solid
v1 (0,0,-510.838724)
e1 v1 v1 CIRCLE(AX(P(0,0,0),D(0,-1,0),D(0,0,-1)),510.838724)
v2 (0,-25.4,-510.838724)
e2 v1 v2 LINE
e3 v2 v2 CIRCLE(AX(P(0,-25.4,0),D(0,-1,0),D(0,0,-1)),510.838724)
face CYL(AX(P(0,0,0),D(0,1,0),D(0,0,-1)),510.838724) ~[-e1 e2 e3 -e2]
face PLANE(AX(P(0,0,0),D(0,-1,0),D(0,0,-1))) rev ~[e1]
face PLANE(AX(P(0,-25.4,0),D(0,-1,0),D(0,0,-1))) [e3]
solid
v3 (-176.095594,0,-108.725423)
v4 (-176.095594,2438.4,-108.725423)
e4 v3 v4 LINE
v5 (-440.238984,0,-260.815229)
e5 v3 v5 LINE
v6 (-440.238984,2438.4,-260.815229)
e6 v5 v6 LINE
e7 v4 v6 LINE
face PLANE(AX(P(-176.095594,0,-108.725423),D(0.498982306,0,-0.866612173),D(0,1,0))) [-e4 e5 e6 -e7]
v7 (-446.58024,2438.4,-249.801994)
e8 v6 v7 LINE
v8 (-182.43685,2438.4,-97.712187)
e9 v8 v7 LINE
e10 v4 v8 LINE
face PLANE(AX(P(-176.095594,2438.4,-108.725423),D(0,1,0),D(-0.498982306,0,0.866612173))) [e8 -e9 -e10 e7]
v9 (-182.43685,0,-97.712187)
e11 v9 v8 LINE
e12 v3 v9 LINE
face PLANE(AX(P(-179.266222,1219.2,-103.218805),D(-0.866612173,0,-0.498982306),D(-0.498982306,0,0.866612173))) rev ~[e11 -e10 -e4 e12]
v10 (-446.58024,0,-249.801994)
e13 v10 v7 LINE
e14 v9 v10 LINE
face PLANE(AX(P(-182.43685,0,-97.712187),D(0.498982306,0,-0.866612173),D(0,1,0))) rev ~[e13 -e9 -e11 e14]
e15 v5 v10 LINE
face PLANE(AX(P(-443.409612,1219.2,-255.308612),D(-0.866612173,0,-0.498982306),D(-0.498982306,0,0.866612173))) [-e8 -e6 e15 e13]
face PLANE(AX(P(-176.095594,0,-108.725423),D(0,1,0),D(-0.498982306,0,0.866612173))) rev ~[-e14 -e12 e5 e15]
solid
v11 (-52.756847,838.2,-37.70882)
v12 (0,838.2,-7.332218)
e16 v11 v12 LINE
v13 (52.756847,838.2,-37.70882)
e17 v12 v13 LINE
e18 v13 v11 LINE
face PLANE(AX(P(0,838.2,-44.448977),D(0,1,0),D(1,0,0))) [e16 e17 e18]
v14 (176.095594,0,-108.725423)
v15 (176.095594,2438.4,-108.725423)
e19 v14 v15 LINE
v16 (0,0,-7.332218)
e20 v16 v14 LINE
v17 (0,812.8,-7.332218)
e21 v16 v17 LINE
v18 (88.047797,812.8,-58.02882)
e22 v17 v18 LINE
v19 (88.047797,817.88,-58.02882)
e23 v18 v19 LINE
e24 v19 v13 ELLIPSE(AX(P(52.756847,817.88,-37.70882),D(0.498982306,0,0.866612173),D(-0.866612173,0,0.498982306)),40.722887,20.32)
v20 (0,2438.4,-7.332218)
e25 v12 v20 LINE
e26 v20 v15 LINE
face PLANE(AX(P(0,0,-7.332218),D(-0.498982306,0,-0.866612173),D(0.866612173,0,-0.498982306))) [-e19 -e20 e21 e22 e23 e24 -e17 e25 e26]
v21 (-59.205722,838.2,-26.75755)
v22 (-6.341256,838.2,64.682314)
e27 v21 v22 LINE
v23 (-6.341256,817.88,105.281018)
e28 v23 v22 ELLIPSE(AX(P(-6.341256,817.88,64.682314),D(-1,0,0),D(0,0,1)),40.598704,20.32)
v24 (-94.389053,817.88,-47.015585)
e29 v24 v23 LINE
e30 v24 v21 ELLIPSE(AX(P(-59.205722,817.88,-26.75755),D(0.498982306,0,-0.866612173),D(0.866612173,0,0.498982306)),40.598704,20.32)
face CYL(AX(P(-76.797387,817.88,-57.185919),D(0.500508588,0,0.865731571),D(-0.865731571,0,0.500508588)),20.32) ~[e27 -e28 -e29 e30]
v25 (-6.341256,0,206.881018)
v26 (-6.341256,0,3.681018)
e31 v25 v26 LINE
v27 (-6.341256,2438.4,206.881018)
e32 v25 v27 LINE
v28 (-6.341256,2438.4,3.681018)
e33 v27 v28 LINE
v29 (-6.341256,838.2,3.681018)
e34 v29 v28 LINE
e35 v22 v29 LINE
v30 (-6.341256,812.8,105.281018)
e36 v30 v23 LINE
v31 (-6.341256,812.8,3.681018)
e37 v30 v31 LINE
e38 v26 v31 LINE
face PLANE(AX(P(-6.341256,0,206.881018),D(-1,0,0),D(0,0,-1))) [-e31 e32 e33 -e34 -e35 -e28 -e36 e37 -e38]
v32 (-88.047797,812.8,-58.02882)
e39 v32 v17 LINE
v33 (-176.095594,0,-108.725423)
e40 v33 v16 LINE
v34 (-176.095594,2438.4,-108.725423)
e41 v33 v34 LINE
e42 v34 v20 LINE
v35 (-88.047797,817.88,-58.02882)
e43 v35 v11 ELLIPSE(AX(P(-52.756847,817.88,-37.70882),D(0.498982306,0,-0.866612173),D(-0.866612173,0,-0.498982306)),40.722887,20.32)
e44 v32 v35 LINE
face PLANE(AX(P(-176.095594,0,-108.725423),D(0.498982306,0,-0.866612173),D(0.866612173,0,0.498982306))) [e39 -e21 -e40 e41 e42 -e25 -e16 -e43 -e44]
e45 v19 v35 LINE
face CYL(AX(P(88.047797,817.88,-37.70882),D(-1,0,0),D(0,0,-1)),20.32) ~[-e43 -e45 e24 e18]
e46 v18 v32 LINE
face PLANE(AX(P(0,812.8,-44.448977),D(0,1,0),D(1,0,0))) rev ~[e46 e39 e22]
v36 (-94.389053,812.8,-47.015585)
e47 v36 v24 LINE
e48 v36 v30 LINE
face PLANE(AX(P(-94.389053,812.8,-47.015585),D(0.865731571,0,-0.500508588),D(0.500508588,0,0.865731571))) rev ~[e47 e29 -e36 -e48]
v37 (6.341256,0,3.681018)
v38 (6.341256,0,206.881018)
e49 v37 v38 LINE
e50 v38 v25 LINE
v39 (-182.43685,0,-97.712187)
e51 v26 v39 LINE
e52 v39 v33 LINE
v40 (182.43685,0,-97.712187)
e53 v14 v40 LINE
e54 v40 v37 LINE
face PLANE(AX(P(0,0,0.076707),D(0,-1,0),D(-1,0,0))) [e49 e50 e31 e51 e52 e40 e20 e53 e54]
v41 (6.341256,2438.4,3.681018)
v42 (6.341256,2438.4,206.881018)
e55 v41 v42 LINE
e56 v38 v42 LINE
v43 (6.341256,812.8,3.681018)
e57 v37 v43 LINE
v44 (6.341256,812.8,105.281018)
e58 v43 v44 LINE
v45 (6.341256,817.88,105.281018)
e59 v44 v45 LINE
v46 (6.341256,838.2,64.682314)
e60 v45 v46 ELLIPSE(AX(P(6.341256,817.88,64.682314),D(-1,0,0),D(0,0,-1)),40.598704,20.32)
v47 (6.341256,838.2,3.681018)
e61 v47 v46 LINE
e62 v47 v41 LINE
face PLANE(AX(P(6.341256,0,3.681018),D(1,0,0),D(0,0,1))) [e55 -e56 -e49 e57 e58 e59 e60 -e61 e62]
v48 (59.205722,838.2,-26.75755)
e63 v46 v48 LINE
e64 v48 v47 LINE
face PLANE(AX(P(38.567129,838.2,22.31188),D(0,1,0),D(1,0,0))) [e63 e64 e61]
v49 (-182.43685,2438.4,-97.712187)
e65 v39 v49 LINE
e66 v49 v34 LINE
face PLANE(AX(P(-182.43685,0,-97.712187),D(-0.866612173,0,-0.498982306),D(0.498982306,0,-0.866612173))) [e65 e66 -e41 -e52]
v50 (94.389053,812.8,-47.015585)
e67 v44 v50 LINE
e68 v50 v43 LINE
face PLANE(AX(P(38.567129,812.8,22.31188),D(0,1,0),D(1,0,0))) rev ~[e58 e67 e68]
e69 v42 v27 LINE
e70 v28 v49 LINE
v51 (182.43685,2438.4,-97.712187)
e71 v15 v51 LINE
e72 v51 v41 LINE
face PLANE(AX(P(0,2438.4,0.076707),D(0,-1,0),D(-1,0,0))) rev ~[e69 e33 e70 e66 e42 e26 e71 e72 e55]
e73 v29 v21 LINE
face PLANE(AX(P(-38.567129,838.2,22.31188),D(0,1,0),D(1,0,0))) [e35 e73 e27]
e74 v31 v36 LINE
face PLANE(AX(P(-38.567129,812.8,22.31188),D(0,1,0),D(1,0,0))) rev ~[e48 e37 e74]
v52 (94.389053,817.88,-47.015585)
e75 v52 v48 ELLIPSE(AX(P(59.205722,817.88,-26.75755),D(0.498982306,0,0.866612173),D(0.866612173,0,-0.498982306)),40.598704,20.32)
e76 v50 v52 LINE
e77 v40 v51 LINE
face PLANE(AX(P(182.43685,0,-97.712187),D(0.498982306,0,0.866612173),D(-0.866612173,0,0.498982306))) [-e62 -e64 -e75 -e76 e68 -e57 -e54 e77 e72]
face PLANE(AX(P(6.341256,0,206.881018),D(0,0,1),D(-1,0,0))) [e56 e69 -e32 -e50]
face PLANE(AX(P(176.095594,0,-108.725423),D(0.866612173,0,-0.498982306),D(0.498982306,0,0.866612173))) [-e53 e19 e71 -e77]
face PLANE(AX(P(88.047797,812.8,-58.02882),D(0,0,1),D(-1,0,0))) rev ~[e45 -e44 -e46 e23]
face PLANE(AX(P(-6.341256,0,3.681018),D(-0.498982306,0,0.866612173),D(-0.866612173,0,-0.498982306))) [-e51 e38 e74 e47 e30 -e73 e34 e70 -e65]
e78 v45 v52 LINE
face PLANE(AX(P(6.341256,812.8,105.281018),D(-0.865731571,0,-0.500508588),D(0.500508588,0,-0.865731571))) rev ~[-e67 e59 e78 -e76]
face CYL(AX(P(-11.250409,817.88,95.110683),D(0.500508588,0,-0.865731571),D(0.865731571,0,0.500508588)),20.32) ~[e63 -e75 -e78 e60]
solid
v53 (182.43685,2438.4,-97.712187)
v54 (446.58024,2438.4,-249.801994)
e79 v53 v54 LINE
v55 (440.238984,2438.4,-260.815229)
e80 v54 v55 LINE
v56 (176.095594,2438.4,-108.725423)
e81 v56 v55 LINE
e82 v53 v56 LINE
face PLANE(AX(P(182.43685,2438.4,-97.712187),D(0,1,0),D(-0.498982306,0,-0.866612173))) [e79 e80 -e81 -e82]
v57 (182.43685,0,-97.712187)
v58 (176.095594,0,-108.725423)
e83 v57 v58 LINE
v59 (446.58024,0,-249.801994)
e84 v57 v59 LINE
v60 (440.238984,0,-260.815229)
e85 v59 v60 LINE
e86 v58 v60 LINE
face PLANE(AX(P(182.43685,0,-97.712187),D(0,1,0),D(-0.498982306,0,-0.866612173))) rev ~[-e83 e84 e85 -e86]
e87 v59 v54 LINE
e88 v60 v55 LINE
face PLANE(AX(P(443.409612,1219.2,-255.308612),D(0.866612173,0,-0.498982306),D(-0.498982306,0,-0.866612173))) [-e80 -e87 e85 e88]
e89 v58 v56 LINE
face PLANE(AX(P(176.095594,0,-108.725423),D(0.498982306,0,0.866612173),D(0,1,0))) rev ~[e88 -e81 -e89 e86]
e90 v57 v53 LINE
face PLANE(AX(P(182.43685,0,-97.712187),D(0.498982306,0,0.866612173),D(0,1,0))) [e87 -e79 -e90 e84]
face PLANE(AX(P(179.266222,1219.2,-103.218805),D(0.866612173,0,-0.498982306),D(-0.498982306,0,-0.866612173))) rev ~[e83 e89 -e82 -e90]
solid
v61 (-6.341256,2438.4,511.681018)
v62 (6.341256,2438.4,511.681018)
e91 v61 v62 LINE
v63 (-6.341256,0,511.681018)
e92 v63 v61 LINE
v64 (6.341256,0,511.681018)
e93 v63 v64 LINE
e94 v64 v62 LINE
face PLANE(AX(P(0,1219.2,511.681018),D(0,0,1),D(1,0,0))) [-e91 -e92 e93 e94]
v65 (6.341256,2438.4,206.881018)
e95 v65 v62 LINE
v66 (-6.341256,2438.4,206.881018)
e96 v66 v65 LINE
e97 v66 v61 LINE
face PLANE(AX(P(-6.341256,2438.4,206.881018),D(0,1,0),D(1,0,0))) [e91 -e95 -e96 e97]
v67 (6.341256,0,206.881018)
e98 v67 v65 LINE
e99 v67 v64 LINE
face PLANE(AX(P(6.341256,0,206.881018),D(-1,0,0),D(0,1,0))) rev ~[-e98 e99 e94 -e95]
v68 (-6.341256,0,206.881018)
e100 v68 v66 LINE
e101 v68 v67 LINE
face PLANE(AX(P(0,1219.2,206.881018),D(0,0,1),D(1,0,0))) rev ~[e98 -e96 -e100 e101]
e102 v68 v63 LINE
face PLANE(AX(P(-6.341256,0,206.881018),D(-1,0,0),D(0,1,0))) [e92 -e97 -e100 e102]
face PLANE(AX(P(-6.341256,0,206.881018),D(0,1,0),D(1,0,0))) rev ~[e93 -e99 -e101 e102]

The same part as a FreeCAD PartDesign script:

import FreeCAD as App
import Part
import Sketcher

V = App.Vector
Q = App.Units.Quantity


def edges_at(feature, points):
    """Names of the edges that pass closest to the given points."""
    edges = feature.Shape.Edges
    near = lambda p: min(range(len(edges)), key=lambda i: edges[i].distToShape(Part.Vertex(*p))[0])
    return sorted({f"Edge{near(p) + 1}" for p in points})


def add_polygon(sketch, points):
    """Adds a closed chain of lines whose ends are joined by coincident constraints."""
    first, n = sketch.GeometryCount, len(points)
    for a, b in zip(points, points[1:] + points[:1]):
        sketch.addGeometry(Part.LineSegment(App.Vector(*a, 0), App.Vector(*b, 0)), False)
    for i in range(n):
        sketch.addConstraint(Sketcher.Constraint("Coincident", first + i, 2, first + (i + 1) % n, 1))

doc = App.newDocument("Part")
params = doc.addObject("Spreadsheet::Sheet", "Params")
for row, (alias, value) in enumerate([
    ("sketch1_height", "8 in"),
    ("sketch1_length", "8 in"),
    ("pad1_length", "96 in"),
    ("sketch2_length", "4 in"),
    ("pad2_length", "1 in"),
    ("fillet_radius", "0.8 in"),
    ("sketch3_height", "4 in"),
    ("sketch3_length", "4 in"),
    ("pad3_length", "1 in"),
    ("fillet2_radius", "0.8 in"),
    ("sketch4_height", "4 in"),
    ("sketch4_length", "4 in"),
    ("pad4_length", "1 in"),
    ("fillet3_radius", "0.8 in"),
    ("sketch5_height", "96 in"),
    ("pad5_length", "12 in"),
    ("sketch6_height", "96 in"),
    ("pad6_length", "12 in"),
    ("sketch7_height", "96 in"),
    ("pad7_length", "12 in"),
    ("pad8_length", "1 in"),
], start=1):
    params.set(f"A{row}", alias)
    params.set(f"B{row}", "=" + value)
    params.setAlias(f"B{row}", alias)

body = doc.addObject("PartDesign::Body", "Body")

sketch1 = body.newObject("Sketcher::SketchObject", "Sketch")
sketch1.AttachmentSupport = (doc.getObject("XZ_Plane"), [""])
sketch1.MapMode = "FlatFace"
add_polygon(sketch1, [(0, -7), (-176, -109), (-182, -98), (-6, 4), (-6, 207), (6, 207), (6, 4), (182, -98), (176, -109)])
sketch1.addConstraint(Sketcher.Constraint("Vertical", 3))
sketch1.addConstraint(Sketcher.Constraint("Horizontal", 4))
sketch1.addConstraint(Sketcher.Constraint("Vertical", 5))
sketch1.addConstraint(Sketcher.Constraint("Symmetric", 2, 2, 5, 2, -2))
sketch1.addConstraint(Sketcher.Constraint("Symmetric", 1, 2, 6, 2, -2))
sketch1.addConstraint(Sketcher.Constraint("Symmetric", 0, 2, 7, 2, -2))
sketch1.addConstraint(Sketcher.Constraint("PointOnObject", 8, 2, -2))
sketch1.addConstraint(Sketcher.Constraint("Perpendicular", 0, 1))
sketch1.addConstraint(Sketcher.Constraint("Perpendicular", 1, 2))
sketch1.addConstraint(Sketcher.Constraint("Equal", 0, 2))
sketch1.addConstraint(Sketcher.Constraint("DistanceY", 3, 1, 3, 2, Q("8 in")))
sketch1.addConstraint(Sketcher.Constraint("Distance", 0, Q("8 in")))
sketch1.addConstraint(Sketcher.Constraint("Distance", 1, Q("12.708379 mm")))
sketch1.addConstraint(Sketcher.Constraint("DistanceX", 4, 1, 4, 2, Q("12.682512 mm")))
sketch1.addConstraint(Sketcher.Constraint("DistanceY", 0, 2, -1, 1, Q("108.725423 mm")))
sketch1.setExpression("Constraints[19]", "Params.sketch1_height")
sketch1.setExpression("Constraints[20]", "Params.sketch1_length")
pad1 = body.newObject("PartDesign::Pad", "Pad")
pad1.Profile = sketch1
pad1.setExpression("Length", "Params.pad1_length")
pad1.Reversed = True

sketch2 = body.newObject("Sketcher::SketchObject", "Sketch001")
sketch2.AttachmentSupport = (doc.getObject("XZ_Plane"), [""])
sketch2.MapMode = "FlatFace"
sketch2.AttachmentOffset = App.Placement(V(0, 0, -32 * 25.4), App.Rotation())
add_polygon(sketch2, [(0, -7), (88, -58), (-88, -58)])
sketch2.addConstraint(Sketcher.Constraint("Horizontal", 1))
sketch2.addConstraint(Sketcher.Constraint("PointOnObject", 2, 2, -2))
sketch2.addConstraint(Sketcher.Constraint("Equal", 0, 2))
sketch2.addConstraint(Sketcher.Constraint("Distance", 0, Q("4 in")))
sketch2.addConstraint(Sketcher.Constraint("DistanceX", 1, 2, 1, 1, Q("176.095594 mm")))
sketch2.addConstraint(Sketcher.Constraint("DistanceY", 0, 2, -1, 1, Q("58.02882 mm")))
sketch2.setExpression("Constraints[6]", "Params.sketch2_length")
pad2 = body.newObject("PartDesign::Pad", "Pad001")
pad2.Profile = sketch2
pad2.setExpression("Length", "Params.pad2_length")
pad2.Reversed = True
doc.recompute()

fillet = body.newObject("PartDesign::Fillet", "Fillet")
fillet.Base = (pad2, edges_at(pad2, [(0, 838.2, -58.029)]))
fillet.setExpression("Radius", "Params.fillet_radius")

sketch3 = body.newObject("Sketcher::SketchObject", "Sketch002")
sketch3.AttachmentSupport = (doc.getObject("XZ_Plane"), [""])
sketch3.MapMode = "FlatFace"
sketch3.AttachmentOffset = App.Placement(V(0, 0, -32 * 25.4), App.Rotation())
add_polygon(sketch3, [(6, 4), (6, 105), (94, -47)])
sketch3.addConstraint(Sketcher.Constraint("Vertical", 0))
sketch3.addConstraint(Sketcher.Constraint("DistanceY", 0, 1, 0, 2, Q("4 in")))
sketch3.addConstraint(Sketcher.Constraint("Distance", 2, Q("4 in")))
sketch3.addConstraint(Sketcher.Constraint("Distance", 1, Q("175.916655 mm")))
sketch3.addConstraint(Sketcher.Constraint("DistanceX", -1, 1, 0, 2, Q("6.341256 mm")))
sketch3.addConstraint(Sketcher.Constraint("DistanceY", -1, 1, 0, 2, Q("105.281018 mm")))
sketch3.setExpression("Constraints[4]", "Params.sketch3_height")
sketch3.setExpression("Constraints[5]", "Params.sketch3_length")
pad3 = body.newObject("PartDesign::Pad", "Pad002")
pad3.Profile = sketch3
pad3.setExpression("Length", "Params.pad3_length")
pad3.Reversed = True
doc.recompute()

fillet2 = body.newObject("PartDesign::Fillet", "Fillet001")
fillet2.Base = (pad3, edges_at(pad3, [(50.365, 838.2, 29.133)]))
fillet2.setExpression("Radius", "Params.fillet2_radius")

sketch4 = body.newObject("Sketcher::SketchObject", "Sketch003")
sketch4.AttachmentSupport = (doc.getObject("XZ_Plane"), [""])
sketch4.MapMode = "FlatFace"
sketch4.AttachmentOffset = App.Placement(V(0, 0, -32 * 25.4), App.Rotation())
add_polygon(sketch4, [(-6, 4), (-94, -47), (-6, 105)])
sketch4.addConstraint(Sketcher.Constraint("Vertical", 2))
sketch4.addConstraint(Sketcher.Constraint("DistanceY", 2, 2, 2, 1, Q("4 in")))
sketch4.addConstraint(Sketcher.Constraint("Distance", 0, Q("4 in")))
sketch4.addConstraint(Sketcher.Constraint("Distance", 1, Q("175.916655 mm")))
sketch4.addConstraint(Sketcher.Constraint("DistanceX", 0, 2, -1, 1, Q("94.389053 mm")))
sketch4.addConstraint(Sketcher.Constraint("DistanceY", 0, 2, -1, 1, Q("47.015585 mm")))
sketch4.setExpression("Constraints[4]", "Params.sketch4_height")
sketch4.setExpression("Constraints[5]", "Params.sketch4_length")
pad4 = body.newObject("PartDesign::Pad", "Pad003")
pad4.Profile = sketch4
pad4.setExpression("Length", "Params.pad4_length")
pad4.Reversed = True
doc.recompute()

fillet3 = body.newObject("PartDesign::Fillet", "Fillet002")
fillet3.Base = (pad4, edges_at(pad4, [(-50.365, 838.2, 29.133)]))
fillet3.setExpression("Radius", "Params.fillet3_radius")
body2 = doc.addObject("PartDesign::Body", "Body001")

sketch5 = body2.newObject("Sketcher::SketchObject", "Sketch004")
sketch5.AttachmentSupport = (doc.getObject("XY_Plane001"), [""])
sketch5.MapMode = "FlatFace"
sketch5.AttachmentOffset = App.Placement(V(0, 0, 206.881018), App.Rotation())
add_polygon(sketch5, [(-6, 2438), (-6, 0), (6, 0), (6, 2438)])
sketch5.addConstraint(Sketcher.Constraint("Vertical", 0))
sketch5.addConstraint(Sketcher.Constraint("Horizontal", 1))
sketch5.addConstraint(Sketcher.Constraint("Vertical", 2))
sketch5.addConstraint(Sketcher.Constraint("Horizontal", 3))
sketch5.addConstraint(Sketcher.Constraint("Symmetric", 0, 2, 1, 2, -1, 1))
sketch5.addConstraint(Sketcher.Constraint("DistanceY", 0, 2, 0, 1, Q("96 in")))
sketch5.addConstraint(Sketcher.Constraint("DistanceX", 1, 1, 1, 2, Q("12.682512 mm")))
sketch5.setExpression("Constraints[9]", "Params.sketch5_height")
pad5 = body2.newObject("PartDesign::Pad", "Pad004")
pad5.Profile = sketch5
pad5.setExpression("Length", "Params.pad5_length")
body3 = doc.addObject("PartDesign::Body", "Body002")

sketch6 = body3.newObject("Sketcher::SketchObject", "Sketch005")
sketch6.Placement = App.Placement(V(179.266222, 0, -103.218805), App.Rotation(V(-0.498982306, 0, -0.866612173), V(0, 1, 0), V(0.866612173, 0, -0.498982306), "ZXY"))
add_polygon(sketch6, [(-6, 2438), (-6, 0), (6, 0), (6, 2438)])
sketch6.addConstraint(Sketcher.Constraint("Vertical", 0))
sketch6.addConstraint(Sketcher.Constraint("Horizontal", 1))
sketch6.addConstraint(Sketcher.Constraint("Vertical", 2))
sketch6.addConstraint(Sketcher.Constraint("Horizontal", 3))
sketch6.addConstraint(Sketcher.Constraint("Symmetric", 0, 2, 1, 2, -1, 1))
sketch6.addConstraint(Sketcher.Constraint("DistanceY", 0, 2, 0, 1, Q("96 in")))
sketch6.addConstraint(Sketcher.Constraint("DistanceX", 1, 1, 1, 2, Q("12.708379 mm")))
sketch6.setExpression("Constraints[9]", "Params.sketch6_height")
pad6 = body3.newObject("PartDesign::Pad", "Pad005")
pad6.Profile = sketch6
pad6.setExpression("Length", "Params.pad6_length")
body4 = doc.addObject("PartDesign::Body", "Body003")

sketch7 = body4.newObject("Sketcher::SketchObject", "Sketch006")
sketch7.Placement = App.Placement(V(-179.266222, 0, -103.218805), App.Rotation(V(-0.498982306, 0, 0.866612173), V(0, 1, 0), V(-0.866612173, 0, -0.498982306), "ZXY"))
add_polygon(sketch7, [(-6, 2438), (-6, 0), (6, 0), (6, 2438)])
sketch7.addConstraint(Sketcher.Constraint("Vertical", 0))
sketch7.addConstraint(Sketcher.Constraint("Horizontal", 1))
sketch7.addConstraint(Sketcher.Constraint("Vertical", 2))
sketch7.addConstraint(Sketcher.Constraint("Horizontal", 3))
sketch7.addConstraint(Sketcher.Constraint("Symmetric", 0, 2, 1, 2, -1, 1))
sketch7.addConstraint(Sketcher.Constraint("DistanceY", 0, 2, 0, 1, Q("96 in")))
sketch7.addConstraint(Sketcher.Constraint("DistanceX", 1, 1, 1, 2, Q("12.708379 mm")))
sketch7.setExpression("Constraints[9]", "Params.sketch7_height")
pad7 = body4.newObject("PartDesign::Pad", "Pad006")
pad7.Profile = sketch7
pad7.setExpression("Length", "Params.pad7_length")
body5 = doc.addObject("PartDesign::Body", "Body004")

sketch8 = body5.newObject("Sketcher::SketchObject", "Sketch007")
sketch8.AttachmentSupport = (doc.getObject("XZ_Plane004"), [""])
sketch8.MapMode = "FlatFace"
sketch8.addGeometry(Part.Circle(V(0, 0, 0), V(0, 0, 1), 511), False)
sketch8.addConstraint(Sketcher.Constraint("Coincident", 0, 3, -1, 1))
sketch8.addConstraint(Sketcher.Constraint("Diameter", 0, Q("1021.677447 mm")))
pad8 = body5.newObject("PartDesign::Pad", "Pad007")
pad8.Profile = sketch8
pad8.setExpression("Length", "Params.pad8_length")

doc.recompute()
